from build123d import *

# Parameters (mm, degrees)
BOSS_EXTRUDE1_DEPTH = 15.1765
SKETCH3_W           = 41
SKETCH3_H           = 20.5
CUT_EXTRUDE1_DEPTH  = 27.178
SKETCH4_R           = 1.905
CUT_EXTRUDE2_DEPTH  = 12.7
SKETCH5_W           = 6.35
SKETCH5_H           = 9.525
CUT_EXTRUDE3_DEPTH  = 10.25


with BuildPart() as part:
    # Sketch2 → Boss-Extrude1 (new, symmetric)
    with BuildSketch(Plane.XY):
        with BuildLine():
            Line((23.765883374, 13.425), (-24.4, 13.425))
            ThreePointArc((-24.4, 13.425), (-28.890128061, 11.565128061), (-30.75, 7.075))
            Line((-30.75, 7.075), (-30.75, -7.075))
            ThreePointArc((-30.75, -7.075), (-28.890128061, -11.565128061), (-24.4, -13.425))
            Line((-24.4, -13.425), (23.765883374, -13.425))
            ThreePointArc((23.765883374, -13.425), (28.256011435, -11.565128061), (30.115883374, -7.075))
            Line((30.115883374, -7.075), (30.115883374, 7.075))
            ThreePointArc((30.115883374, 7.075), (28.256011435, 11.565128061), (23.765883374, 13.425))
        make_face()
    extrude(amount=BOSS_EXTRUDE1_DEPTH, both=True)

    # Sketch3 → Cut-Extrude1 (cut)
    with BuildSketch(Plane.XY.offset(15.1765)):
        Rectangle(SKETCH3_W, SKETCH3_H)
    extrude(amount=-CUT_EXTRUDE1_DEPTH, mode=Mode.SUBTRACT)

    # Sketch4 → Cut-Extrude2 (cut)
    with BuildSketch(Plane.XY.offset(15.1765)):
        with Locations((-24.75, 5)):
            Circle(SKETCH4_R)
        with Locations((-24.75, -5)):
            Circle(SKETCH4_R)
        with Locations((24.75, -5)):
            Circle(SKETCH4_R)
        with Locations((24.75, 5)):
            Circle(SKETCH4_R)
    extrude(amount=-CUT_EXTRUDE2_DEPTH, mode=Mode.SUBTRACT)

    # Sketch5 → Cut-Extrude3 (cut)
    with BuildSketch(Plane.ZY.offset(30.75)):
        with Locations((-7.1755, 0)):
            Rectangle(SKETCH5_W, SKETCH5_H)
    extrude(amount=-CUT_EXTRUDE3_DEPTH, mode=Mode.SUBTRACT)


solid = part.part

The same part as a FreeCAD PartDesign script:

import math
import FreeCAD as App
import Part
import Sketcher
from FreeCAD import Vector
Q = App.Units.Quantity

doc = App.newDocument("Part")
body = doc.addObject("PartDesign::Body", "Body")

# Sketch on XY plane
sketch1 = doc.addObject("Sketcher::SketchObject", "Sketch")
body.addObject(sketch1)
sketch1.AttachmentSupport = (doc.XY_Plane, [""])
sketch1.MapMode = "FlatFace"
sketch1.addGeometry([
    Part.LineSegment(Vector(24, 13, 0), Vector(-24, 13, 0)),  # 0
    Part.ArcOfCircle(Part.Circle(Vector(-24, 7, 0), Vector(0, 0, 1), 6), math.radians(90), math.radians(180)),  # 1
    Part.LineSegment(Vector(-31, 7, 0), Vector(-31, -7, 0)),  # 2
    Part.ArcOfCircle(Part.Circle(Vector(-24, -7, 0), Vector(0, 0, 1), 6), math.radians(180), math.radians(270)),  # 3
    Part.LineSegment(Vector(-24, -13, 0), Vector(24, -13, 0)),  # 4
    Part.ArcOfCircle(Part.Circle(Vector(24, -7, 0), Vector(0, 0, 1), 6), math.radians(-90), math.radians(0)),  # 5
    Part.LineSegment(Vector(30, -7, 0), Vector(30, 7, 0)),  # 6
    Part.ArcOfCircle(Part.Circle(Vector(24, 7, 0), Vector(0, 0, 1), 6), math.radians(0), math.radians(90)),  # 7
], False)
sketch1.addConstraint([
    Sketcher.Constraint("Tangent", 0, 2, 1, 1),
    Sketcher.Constraint("Tangent", 1, 2, 2, 1),
    Sketcher.Constraint("Tangent", 2, 2, 3, 1),
    Sketcher.Constraint("Tangent", 3, 2, 4, 1),
    Sketcher.Constraint("Tangent", 4, 2, 5, 1),
    Sketcher.Constraint("Tangent", 5, 2, 6, 1),
    Sketcher.Constraint("Tangent", 6, 2, 7, 1),
    Sketcher.Constraint("Tangent", 7, 2, 0, 1),
    Sketcher.Constraint("Horizontal", 0),
    Sketcher.Constraint("Vertical", 2),
    Sketcher.Constraint("Horizontal", 4),
    Sketcher.Constraint("Vertical", 6),
    Sketcher.Constraint("Equal", 1, 3),
    Sketcher.Constraint("Equal", 3, 5),
    Sketcher.Constraint("Equal", 5, 7),
    Sketcher.Constraint("Radius", 1, Q("0.25 in")),
    Sketcher.Constraint("DistanceY", 2, 2, 2, 1, 14.15),
    Sketcher.Constraint("DistanceX", 1, 3, -1, 1, 24.4),
    Sketcher.Constraint("DistanceY", -1, 1, 1, 3, 7.075),
    Sketcher.Constraint("DistanceX", 0, 2, 0, 1, 48.165883),
])
pad1 = doc.addObject("PartDesign::Pad", "Pad")
body.addObject(pad1)
pad1.Profile = sketch1
pad1.Length = Q("1.195 in")
pad1.Midplane = True

# Sketch on XY plane
sketch2 = doc.addObject("Sketcher::SketchObject", "Sketch001")
body.addObject(sketch2)
sketch2.AttachmentSupport = (doc.XY_Plane, [""])
sketch2.MapMode = "FlatFace"
sketch2.AttachmentOffset = App.Placement(Vector(0, 0, 0.5975 * 25.4), App.Rotation())
sketch2.addGeometry([
    Part.LineSegment(Vector(-20, 10, 0), Vector(-20, -10, 0)),
    Part.LineSegment(Vector(-20, -10, 0), Vector(20, -10, 0)),
    Part.LineSegment(Vector(20, -10, 0), Vector(20, 10, 0)),
    Part.LineSegment(Vector(20, 10, 0), Vector(-20, 10, 0)),
], False)
sketch2.addConstraint([
    Sketcher.Constraint("Coincident", 0, 2, 1, 1),
    Sketcher.Constraint("Coincident", 1, 2, 2, 1),
    Sketcher.Constraint("Coincident", 2, 2, 3, 1),
    Sketcher.Constraint("Coincident", 3, 2, 0, 1),
    Sketcher.Constraint("Vertical", 0),
    Sketcher.Constraint("Horizontal", 1),
    Sketcher.Constraint("Vertical", 2),
    Sketcher.Constraint("Horizontal", 3),
    Sketcher.Constraint("Symmetric", 0, 2, 2, 2, -1, 1),
    Sketcher.Constraint("DistanceX", 1, 1, 1, 2, 41.0),
    Sketcher.Constraint("DistanceY", 0, 2, 0, 1, 20.5),
])
pocket1 = doc.addObject("PartDesign::Pocket", "Pocket")
body.addObject(pocket1)
pocket1.Profile = sketch2
pocket1.Length = Q("1.07 in")

# Sketch on XY plane
sketch3 = doc.addObject("Sketcher::SketchObject", "Sketch002")
body.addObject(sketch3)
sketch3.AttachmentSupport = (doc.XY_Plane, [""])
sketch3.MapMode = "FlatFace"
sketch3.AttachmentOffset = App.Placement(Vector(0, 0, 0.5975 * 25.4), App.Rotation())
sketch3.addGeometry([
    Part.Circle(Vector(-24.8, 5, 0), Vector(0, 0, 1), 1.9),
    Part.Circle(Vector(-24.8, -5, 0), Vector(0, 0, 1), 1.9),
    Part.Circle(Vector(24.8, -5, 0), Vector(0, 0, 1), 1.9),
    Part.Circle(Vector(24.8, 5, 0), Vector(0, 0, 1), 1.9),
], False)
sketch3.addConstraint([
    Sketcher.Constraint("Equal", 0, 1),
    Sketcher.Constraint("Equal", 1, 2),
    Sketcher.Constraint("Equal", 2, 3),
    Sketcher.Constraint("Symmetric", 0, 3, 2, 3, -1, 1),
    Sketcher.Constraint("Symmetric", 1, 3, 3, 3, -1, 1),
    Sketcher.Constraint("Symmetric", 1, 3, 2, 3, -2),
    Sketcher.Constraint("Diameter", 0, Q("0.15 in")),
    Sketcher.Constraint("DistanceX", 0, 3, -1, 1, 24.75),
    Sketcher.Constraint("DistanceY", -1, 1, 0, 3, 5.0),
])
pocket2 = doc.addObject("PartDesign::Pocket", "Pocket001")
body.addObject(pocket2)
pocket2.Profile = sketch3
pocket2.Length = Q("0.5 in")

# Sketch on YZ plane
sketch4 = doc.addObject("Sketcher::SketchObject", "Sketch003")
body.addObject(sketch4)
sketch4.AttachmentSupport = (doc.YZ_Plane, [""])
sketch4.MapMode = "FlatFace"
sketch4.AttachmentOffset = App.Placement(Vector(0, 0, -30.75), App.Rotation())
sketch4.addGeometry([
    Part.LineSegment(Vector(5, -10, 0), Vector(-5, -10, 0)),
    Part.LineSegment(Vector(-5, -10, 0), Vector(-5, -4, 0)),
    Part.LineSegment(Vector(-5, -4, 0), Vector(5, -4, 0)),
    Part.LineSegment(Vector(5, -4, 0), Vector(5, -10, 0)),
], False)
sketch4.addConstraint([
    Sketcher.Constraint("Coincident", 0, 2, 1, 1),
    Sketcher.Constraint("Coincident", 1, 2, 2, 1),
    Sketcher.Constraint("Coincident", 2, 2, 3, 1),
    Sketcher.Constraint("Coincident", 3, 2, 0, 1),
    Sketcher.Constraint("Horizontal", 0),
    Sketcher.Constraint("Vertical", 1),
    Sketcher.Constraint("Horizontal", 2),
    Sketcher.Constraint("Vertical", 3),
    Sketcher.Constraint("DistanceY", 1, 1, 1, 2, Q("0.25 in")),
    Sketcher.Constraint("DistanceX", 0, 2, 0, 1, Q("0.375 in")),
    Sketcher.Constraint("DistanceX", 0, 2, -1, 1, Q("0.1875 in")),
    Sketcher.Constraint("DistanceY", 0, 2, -1, 1, Q("0.4075 in")),
])
pocket3 = doc.addObject("PartDesign::Pocket", "Pocket002")
body.addObject(pocket3)
pocket3.Profile = sketch4
pocket3.Length = 10.25
pocket3.Reversed = True

doc.recompute()
